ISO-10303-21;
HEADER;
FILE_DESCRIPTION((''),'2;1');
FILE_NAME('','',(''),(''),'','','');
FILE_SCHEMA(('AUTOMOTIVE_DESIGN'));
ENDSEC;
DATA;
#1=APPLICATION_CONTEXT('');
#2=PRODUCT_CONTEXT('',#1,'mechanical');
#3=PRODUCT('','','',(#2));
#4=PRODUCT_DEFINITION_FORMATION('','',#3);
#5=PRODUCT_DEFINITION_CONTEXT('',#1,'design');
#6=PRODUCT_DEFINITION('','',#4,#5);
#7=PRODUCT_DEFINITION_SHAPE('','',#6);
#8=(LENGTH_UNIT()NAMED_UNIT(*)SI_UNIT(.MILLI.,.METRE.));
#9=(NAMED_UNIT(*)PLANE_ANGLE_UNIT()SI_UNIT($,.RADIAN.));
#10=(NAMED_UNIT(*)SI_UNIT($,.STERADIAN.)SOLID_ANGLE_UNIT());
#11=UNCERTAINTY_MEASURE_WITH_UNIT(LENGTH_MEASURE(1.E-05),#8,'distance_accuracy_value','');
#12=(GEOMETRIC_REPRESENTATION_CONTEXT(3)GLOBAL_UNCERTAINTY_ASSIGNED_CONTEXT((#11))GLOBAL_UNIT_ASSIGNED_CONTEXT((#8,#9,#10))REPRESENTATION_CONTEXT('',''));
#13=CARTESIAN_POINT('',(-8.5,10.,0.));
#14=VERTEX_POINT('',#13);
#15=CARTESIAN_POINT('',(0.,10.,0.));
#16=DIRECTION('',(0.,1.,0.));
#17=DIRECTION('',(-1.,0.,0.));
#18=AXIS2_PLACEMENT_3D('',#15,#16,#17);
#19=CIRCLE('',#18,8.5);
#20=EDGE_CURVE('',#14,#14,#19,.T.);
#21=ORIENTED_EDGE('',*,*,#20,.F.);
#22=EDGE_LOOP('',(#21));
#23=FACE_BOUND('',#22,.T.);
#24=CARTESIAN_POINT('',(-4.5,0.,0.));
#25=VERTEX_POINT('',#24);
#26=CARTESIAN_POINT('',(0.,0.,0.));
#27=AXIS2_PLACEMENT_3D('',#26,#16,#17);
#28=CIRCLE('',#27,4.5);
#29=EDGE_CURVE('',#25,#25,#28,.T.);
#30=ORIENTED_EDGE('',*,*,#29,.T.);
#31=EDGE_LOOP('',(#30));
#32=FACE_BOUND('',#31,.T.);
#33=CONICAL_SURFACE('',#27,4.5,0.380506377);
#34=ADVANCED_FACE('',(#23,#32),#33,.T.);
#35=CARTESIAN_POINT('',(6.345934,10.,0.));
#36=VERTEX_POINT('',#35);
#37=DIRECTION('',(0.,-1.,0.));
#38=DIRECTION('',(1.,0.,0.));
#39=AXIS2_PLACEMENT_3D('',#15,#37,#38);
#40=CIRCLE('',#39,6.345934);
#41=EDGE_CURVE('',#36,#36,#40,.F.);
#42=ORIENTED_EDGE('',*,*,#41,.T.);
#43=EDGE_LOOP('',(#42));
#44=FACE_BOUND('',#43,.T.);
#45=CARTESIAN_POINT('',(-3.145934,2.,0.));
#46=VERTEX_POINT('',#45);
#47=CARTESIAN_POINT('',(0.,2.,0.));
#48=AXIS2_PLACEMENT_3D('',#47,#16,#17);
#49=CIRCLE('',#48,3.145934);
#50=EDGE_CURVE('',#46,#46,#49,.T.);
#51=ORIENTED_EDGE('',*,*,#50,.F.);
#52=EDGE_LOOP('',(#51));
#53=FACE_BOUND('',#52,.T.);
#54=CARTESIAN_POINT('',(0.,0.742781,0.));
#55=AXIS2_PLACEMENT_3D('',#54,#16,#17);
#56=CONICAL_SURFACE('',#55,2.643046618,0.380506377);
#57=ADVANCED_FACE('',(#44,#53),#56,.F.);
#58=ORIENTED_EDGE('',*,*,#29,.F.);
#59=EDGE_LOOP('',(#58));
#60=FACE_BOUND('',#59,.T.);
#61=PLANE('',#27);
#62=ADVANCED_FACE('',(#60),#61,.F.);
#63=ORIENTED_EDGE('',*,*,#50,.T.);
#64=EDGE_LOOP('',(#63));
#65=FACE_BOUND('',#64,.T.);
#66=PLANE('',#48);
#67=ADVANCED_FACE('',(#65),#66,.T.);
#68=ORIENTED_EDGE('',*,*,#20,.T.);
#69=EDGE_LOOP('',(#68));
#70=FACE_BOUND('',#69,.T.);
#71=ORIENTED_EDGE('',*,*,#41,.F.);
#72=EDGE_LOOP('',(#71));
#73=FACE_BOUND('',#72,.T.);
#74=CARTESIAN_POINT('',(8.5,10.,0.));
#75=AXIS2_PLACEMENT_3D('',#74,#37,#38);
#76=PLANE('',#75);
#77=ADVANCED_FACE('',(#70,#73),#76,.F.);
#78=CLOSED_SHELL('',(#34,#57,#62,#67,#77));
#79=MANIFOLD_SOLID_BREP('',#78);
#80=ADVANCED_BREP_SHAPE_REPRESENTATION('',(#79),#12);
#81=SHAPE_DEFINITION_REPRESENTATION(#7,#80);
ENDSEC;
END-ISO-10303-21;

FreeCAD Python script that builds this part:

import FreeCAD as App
import Part
import Sketcher
Q = App.Units.Quantity


def faces_at(feature, points):
    """Names of the faces that lie closest to the given points."""
    faces = feature.Shape.Faces
    near = lambda p: min(range(len(faces)), key=lambda i: faces[i].distToShape(Part.Vertex(*p))[0])
    return sorted({f"Face{near(p) + 1}" for p in points})


def add_polygon(sketch, points):
    """Adds a closed chain of lines whose ends are joined by coincident constraints."""
    first, n = sketch.GeometryCount, len(points)
    for a, b in zip(points, points[1:] + points[:1]):
        sketch.addGeometry(Part.LineSegment(App.Vector(*a, 0), App.Vector(*b, 0)), False)
    for i in range(n):
        sketch.addConstraint(Sketcher.Constraint("Coincident", first + i, 2, first + (i + 1) % n, 1))

doc = App.newDocument("Part")
body = doc.addObject("PartDesign::Body", "Body")

# Sketch on XY plane
sketch1 = body.newObject("Sketcher::SketchObject", "Sketch")
sketch1.AttachmentSupport = (doc.getObject("XY_Plane"), [""])
sketch1.MapMode = "FlatFace"
add_polygon(sketch1, [(0, 0), (4.5, 0), (8.5, 10), (0, 10)])  # lines 0-3
sketch1.addConstraint([
    Sketcher.Constraint("Horizontal", 0),
    Sketcher.Constraint("Horizontal", 2),
    Sketcher.Constraint("Vertical", 3),
    Sketcher.Constraint("Coincident", 3, 2, -1, 1),
    Sketcher.Constraint("DistanceY", 3, 2, 3, 1, Q("10 mm")),
    Sketcher.Constraint("DistanceX", 0, 1, 0, 2, Q("4.5 mm")),
    Sketcher.Constraint("DistanceX", 2, 2, 2, 1, Q("8.5 mm")),
])
revolution = body.newObject("PartDesign::Revolution", "Revolution")
revolution.Profile = sketch1
revolution.ReferenceAxis = (sketch1, ["V_Axis"])
revolution.Angle = 360
doc.recompute()

thickness = body.newObject("PartDesign::Thickness", "Thickness")
thickness.Base = (revolution, faces_at(revolution, [(0, 10, 0)]))
thickness.Value = 2
thickness.Reversed = True
thickness.Join = "Intersection"

doc.recompute()
